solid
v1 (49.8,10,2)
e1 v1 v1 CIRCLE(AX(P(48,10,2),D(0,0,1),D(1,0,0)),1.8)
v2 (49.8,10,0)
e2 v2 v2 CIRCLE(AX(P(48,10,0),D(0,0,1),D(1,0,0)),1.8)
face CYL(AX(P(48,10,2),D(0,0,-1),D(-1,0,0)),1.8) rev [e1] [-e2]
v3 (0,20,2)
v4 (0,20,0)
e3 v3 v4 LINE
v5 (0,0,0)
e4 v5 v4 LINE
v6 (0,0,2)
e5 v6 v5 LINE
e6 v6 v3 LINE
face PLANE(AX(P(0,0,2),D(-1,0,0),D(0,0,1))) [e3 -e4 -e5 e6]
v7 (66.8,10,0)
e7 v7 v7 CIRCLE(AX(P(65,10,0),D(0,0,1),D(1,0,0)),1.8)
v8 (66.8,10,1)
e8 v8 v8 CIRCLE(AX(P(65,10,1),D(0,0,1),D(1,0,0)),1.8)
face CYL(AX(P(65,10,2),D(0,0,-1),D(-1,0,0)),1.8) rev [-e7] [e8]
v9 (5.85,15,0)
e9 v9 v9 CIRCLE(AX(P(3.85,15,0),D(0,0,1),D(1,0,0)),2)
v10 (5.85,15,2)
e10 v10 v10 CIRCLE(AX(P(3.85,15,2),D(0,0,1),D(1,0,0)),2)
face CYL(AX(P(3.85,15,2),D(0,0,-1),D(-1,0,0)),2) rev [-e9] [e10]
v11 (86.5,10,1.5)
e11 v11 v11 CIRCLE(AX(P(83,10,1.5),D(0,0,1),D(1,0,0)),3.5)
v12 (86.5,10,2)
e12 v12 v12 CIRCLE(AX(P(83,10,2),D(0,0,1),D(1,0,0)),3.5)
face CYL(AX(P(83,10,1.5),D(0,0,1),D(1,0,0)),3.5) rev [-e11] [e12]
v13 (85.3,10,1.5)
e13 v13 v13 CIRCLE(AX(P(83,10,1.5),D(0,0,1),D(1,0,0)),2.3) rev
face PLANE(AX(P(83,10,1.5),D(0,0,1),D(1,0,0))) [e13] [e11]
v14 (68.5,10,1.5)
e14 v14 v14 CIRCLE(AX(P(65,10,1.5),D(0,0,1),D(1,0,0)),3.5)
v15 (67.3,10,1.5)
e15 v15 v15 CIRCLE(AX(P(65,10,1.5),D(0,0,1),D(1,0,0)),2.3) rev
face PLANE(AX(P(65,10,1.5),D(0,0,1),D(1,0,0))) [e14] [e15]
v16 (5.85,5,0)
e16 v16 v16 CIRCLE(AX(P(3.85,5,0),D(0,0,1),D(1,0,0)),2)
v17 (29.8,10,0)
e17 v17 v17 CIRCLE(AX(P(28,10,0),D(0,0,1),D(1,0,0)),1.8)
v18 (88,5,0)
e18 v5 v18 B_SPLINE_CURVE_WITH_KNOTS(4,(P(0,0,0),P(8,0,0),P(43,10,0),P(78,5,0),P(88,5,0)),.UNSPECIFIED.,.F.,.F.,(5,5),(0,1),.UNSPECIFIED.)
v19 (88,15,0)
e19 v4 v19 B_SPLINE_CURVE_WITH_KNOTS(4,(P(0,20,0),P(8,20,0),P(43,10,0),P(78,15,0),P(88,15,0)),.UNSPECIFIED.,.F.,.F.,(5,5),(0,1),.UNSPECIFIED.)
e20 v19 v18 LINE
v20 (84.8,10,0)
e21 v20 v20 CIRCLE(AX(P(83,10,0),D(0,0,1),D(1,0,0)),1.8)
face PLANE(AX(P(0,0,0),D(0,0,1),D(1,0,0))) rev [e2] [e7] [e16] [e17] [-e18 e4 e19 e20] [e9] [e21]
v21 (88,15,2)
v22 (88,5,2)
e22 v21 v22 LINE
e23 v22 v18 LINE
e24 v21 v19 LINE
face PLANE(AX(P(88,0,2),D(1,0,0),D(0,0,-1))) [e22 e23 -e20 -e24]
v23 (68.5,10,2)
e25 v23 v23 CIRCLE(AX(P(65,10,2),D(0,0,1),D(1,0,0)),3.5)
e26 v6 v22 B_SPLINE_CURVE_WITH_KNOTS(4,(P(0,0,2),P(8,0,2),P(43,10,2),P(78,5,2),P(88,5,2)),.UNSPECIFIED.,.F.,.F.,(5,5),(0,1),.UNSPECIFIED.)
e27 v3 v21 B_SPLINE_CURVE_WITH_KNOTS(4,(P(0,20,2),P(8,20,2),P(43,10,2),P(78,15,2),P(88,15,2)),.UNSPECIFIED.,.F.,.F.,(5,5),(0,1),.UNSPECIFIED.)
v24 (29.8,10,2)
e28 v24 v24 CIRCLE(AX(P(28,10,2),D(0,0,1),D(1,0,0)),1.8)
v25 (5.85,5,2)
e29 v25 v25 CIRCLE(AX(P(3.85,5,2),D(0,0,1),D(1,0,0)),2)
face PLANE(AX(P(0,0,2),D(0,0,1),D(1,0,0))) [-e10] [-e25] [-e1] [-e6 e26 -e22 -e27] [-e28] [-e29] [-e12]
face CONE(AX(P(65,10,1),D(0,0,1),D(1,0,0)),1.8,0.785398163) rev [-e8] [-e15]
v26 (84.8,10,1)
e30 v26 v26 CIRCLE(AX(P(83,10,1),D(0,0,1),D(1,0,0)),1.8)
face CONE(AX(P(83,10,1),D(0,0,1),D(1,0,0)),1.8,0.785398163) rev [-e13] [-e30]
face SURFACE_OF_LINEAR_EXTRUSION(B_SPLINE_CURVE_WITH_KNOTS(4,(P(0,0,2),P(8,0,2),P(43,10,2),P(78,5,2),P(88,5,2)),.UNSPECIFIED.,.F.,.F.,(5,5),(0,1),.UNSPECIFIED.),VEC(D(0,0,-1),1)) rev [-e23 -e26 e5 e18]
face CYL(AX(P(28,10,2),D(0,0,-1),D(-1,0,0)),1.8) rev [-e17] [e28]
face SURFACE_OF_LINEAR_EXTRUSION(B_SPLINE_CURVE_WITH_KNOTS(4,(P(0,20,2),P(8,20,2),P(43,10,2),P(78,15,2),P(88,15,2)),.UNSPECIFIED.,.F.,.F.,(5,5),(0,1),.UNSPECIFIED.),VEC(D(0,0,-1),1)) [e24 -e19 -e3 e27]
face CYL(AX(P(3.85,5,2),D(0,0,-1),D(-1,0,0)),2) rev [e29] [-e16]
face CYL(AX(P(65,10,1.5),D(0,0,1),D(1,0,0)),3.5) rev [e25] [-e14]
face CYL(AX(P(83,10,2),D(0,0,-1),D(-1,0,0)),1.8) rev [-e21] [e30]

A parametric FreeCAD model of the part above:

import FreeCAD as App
import Part
import Sketcher

V = App.Vector
Q = App.Units.Quantity


def edges_at(feature, points):
    """Names of the edges that pass closest to the given points."""
    edges = feature.Shape.Edges
    near = lambda p: min(range(len(edges)), key=lambda i: edges[i].distToShape(Part.Vertex(*p))[0])
    return sorted({f"Edge{near(p) + 1}" for p in points})

doc = App.newDocument("Part")
body = doc.addObject("PartDesign::Body", "Body")

# Sketch on XY plane
sketch1 = body.newObject("Sketcher::SketchObject", "Sketch")
sketch1.AttachmentSupport = (doc.getObject("XY_Plane"), [""])
sketch1.MapMode = "FlatFace"
sketch1.addGeometry(Part.LineSegment(V(0, 20, 0), V(0, 0, 0)), False)
sketch1.addGeometry(Part.BSplineCurve([V(0, 0, 0), V(8, 0, 0), V(43, 10, 0), V(78, 5, 0), V(88, 5, 0)], [5, 5], [0, 1], False, 4, [1, 1, 1, 1, 1], False), False)
sketch1.addGeometry(Part.LineSegment(V(88, 5, 0), V(88, 15, 0)), False)
sketch1.addGeometry(Part.BSplineCurve([V(0, 20, 0), V(8, 20, 0), V(43, 10, 0), V(78, 15, 0), V(88, 15, 0)], [5, 5], [0, 1], False, 4, [1, 1, 1, 1, 1], False), False)
sketch1.addGeometry(Part.Circle(V(3.85, 5, 0), V(0, 0, 1), 2), False)
sketch1.addGeometry(Part.Circle(V(83, 10, 0), V(0, 0, 1), 1.8), False)
sketch1.addGeometry(Part.Circle(V(65, 10, 0), V(0, 0, 1), 1.8), False)
sketch1.addGeometry(Part.Circle(V(48, 10, 0), V(0, 0, 1), 1.8), False)
sketch1.addGeometry(Part.Circle(V(28, 10, 0), V(0, 0, 1), 1.8), False)
sketch1.addGeometry(Part.Circle(V(3.85, 15, 0), V(0, 0, 1), 2), False)
sketch1.addConstraint(Sketcher.Constraint("Block", 1))
sketch1.addConstraint(Sketcher.Constraint("Block", 3))
sketch1.addConstraint(Sketcher.Constraint("Coincident", 0, 2, 1, 1))
sketch1.addConstraint(Sketcher.Constraint("Coincident", 1, 2, 2, 1))
sketch1.addConstraint(Sketcher.Constraint("Coincident", 2, 2, 3, 2))
sketch1.addConstraint(Sketcher.Constraint("Coincident", 3, 1, 0, 1))
sketch1.addConstraint(Sketcher.Constraint("Equal", 5, 6))
sketch1.addConstraint(Sketcher.Constraint("Equal", 6, 7))
sketch1.addConstraint(Sketcher.Constraint("Equal", 7, 8))
sketch1.addConstraint(Sketcher.Constraint("Equal", 4, 9))
sketch1.addConstraint(Sketcher.Constraint("Horizontal", 5, 3, 6, 3))
sketch1.addConstraint(Sketcher.Constraint("Horizontal", 6, 3, 7, 3))
sketch1.addConstraint(Sketcher.Constraint("Horizontal", 7, 3, 8, 3))
sketch1.addConstraint(Sketcher.Constraint("Horizontal", 9, 3, 2, 2))
sketch1.addConstraint(Sketcher.Constraint("Vertical", 4, 3, 9, 3))
sketch1.addConstraint(Sketcher.Constraint("Diameter", 4, Q("4 mm")))
sketch1.addConstraint(Sketcher.Constraint("Diameter", 5, Q("3.6 mm")))
sketch1.addConstraint(Sketcher.Constraint("DistanceY", -1, 1, 4, 3, Q("5 mm")))
sketch1.addConstraint(Sketcher.Constraint("DistanceX", -1, 1, 5, 3, Q("83 mm")))
sketch1.addConstraint(Sketcher.Constraint("DistanceY", -1, 1, 5, 3, Q("10 mm")))
sketch1.addConstraint(Sketcher.Constraint("DistanceX", -1, 1, 6, 3, Q("65 mm")))
sketch1.addConstraint(Sketcher.Constraint("DistanceX", -1, 1, 7, 3, Q("48 mm")))
sketch1.addConstraint(Sketcher.Constraint("DistanceX", -1, 1, 8, 3, Q("28 mm")))
sketch1.addConstraint(Sketcher.Constraint("DistanceX", -1, 1, 4, 3, Q("3.85 mm")))
pad1 = body.newObject("PartDesign::Pad", "Pad")
pad1.Profile = sketch1
pad1.Length = 2

# Sketch on XY plane
sketch2 = body.newObject("Sketcher::SketchObject", "Sketch001")
sketch2.AttachmentSupport = (doc.getObject("XY_Plane"), [""])
sketch2.MapMode = "FlatFace"
sketch2.AttachmentOffset = App.Placement(V(0, 0, 2), App.Rotation())
sketch2.addGeometry(Part.Circle(V(65, 10, 0), V(0, 0, 1), 3.5), False)
sketch2.addGeometry(Part.Circle(V(83, 10, 0), V(0, 0, 1), 3.5), False)
sketch2.addConstraint(Sketcher.Constraint("Equal", 0, 1))
sketch2.addConstraint(Sketcher.Constraint("Horizontal", 0, 3, 1, 3))
sketch2.addConstraint(Sketcher.Constraint("Diameter", 0, Q("7 mm")))
sketch2.addConstraint(Sketcher.Constraint("DistanceX", -1, 1, 0, 3, Q("65 mm")))
sketch2.addConstraint(Sketcher.Constraint("DistanceY", -1, 1, 0, 3, Q("10 mm")))
sketch2.addConstraint(Sketcher.Constraint("DistanceX", -1, 1, 1, 3, Q("83 mm")))
pocket1 = body.newObject("PartDesign::Pocket", "Pocket")
pocket1.Profile = sketch2
pocket1.Length = 0.5
doc.recompute()

chamfer = body.newObject("PartDesign::Chamfer", "Chamfer")
chamfer.Base = (pocket1, edges_at(pocket1, [(63.2, 10, 1.5), (81.2, 10, 1.5)]))
chamfer.Size = 0.5

doc.recompute()
